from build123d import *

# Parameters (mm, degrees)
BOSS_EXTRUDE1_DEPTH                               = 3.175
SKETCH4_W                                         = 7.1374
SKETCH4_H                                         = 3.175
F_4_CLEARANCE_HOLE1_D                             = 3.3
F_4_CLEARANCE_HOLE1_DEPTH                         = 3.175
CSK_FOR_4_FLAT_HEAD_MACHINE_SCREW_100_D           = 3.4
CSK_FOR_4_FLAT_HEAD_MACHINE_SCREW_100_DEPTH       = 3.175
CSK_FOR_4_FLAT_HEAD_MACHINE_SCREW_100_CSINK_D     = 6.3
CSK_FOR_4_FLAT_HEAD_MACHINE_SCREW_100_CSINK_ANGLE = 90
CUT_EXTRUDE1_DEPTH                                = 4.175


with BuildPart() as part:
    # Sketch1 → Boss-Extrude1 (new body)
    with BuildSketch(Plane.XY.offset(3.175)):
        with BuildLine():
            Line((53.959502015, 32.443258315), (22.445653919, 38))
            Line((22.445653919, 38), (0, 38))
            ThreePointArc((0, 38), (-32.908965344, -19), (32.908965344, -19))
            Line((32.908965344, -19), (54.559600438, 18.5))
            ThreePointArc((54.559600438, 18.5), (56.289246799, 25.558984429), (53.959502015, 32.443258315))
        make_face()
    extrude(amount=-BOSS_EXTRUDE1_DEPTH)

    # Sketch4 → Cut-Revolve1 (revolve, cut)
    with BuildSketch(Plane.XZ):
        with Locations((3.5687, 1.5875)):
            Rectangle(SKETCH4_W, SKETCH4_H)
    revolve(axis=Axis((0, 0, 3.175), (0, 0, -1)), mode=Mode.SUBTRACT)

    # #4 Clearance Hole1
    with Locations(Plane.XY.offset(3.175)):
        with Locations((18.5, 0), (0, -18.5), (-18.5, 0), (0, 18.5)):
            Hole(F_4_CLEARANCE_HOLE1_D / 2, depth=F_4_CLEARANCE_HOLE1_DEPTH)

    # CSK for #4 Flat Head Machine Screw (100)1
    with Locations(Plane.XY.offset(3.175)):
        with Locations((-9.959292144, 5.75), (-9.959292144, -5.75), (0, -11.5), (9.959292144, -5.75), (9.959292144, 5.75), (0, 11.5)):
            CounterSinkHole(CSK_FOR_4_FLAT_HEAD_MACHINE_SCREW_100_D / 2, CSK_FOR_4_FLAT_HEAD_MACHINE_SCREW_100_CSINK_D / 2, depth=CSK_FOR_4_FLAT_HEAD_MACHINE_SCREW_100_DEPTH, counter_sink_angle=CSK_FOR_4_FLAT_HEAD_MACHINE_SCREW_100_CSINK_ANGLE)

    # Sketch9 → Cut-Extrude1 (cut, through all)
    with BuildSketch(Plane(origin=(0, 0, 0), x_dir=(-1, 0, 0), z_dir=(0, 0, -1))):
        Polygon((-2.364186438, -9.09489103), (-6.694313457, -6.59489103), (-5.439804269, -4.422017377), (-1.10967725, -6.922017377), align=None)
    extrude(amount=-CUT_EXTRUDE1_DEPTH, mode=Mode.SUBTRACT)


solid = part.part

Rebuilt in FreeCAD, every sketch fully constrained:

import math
import FreeCAD as App
import Part
import Sketcher
Q = App.Units.Quantity

doc = App.newDocument("Part")
params = doc.addObject("Spreadsheet::Sheet", "Params")
for row, (alias, value) in enumerate([
    ("sketch1_radius", "38 mm"),
    ("sketch1_radius2", "13 mm"),
    ("sketch1_length", "32 mm"),
    ("pad1_length", "3.175 mm"),
    ("groove_angle", "360 deg"),
    ("sketch3_diameter", "3.3 mm"),
    ("hole_diameter", "3.3 mm"),
    ("hole_depth", "3.175 mm"),
    ("sketch4_diameter", "3.4 mm"),
    ("hole2_diameter", "3.4 mm"),
    ("hole2_depth", "3.175 mm"),
    ("hole2_csink_diameter", "6.3 mm"),
    ("sketch5_length", "5 mm"),
], start=1):
    params.set(f"A{row}", alias)
    params.set(f"B{row}", "=" + value)
    params.setAlias(f"B{row}", alias)

body = doc.addObject("PartDesign::Body", "Body")

# Sketch on XY plane
sketch1 = body.newObject("Sketcher::SketchObject", "Sketch")
sketch1.AttachmentSupport = (doc.getObject("XY_Plane"), [""])
sketch1.MapMode = "FlatFace"
sketch1.AttachmentOffset = App.Placement(App.Vector(0, 0, 3.175), App.Rotation())
sketch1.addGeometry([
    Part.LineSegment(App.Vector(54, 32, 0), App.Vector(22, 38, 0)),  # 0
    Part.LineSegment(App.Vector(22, 38, 0), App.Vector(0, 38, 0)),  # 1
    Part.ArcOfCircle(Part.Circle(App.Vector(0, 0, 0), App.Vector(0, 0, 1), 38), math.radians(90), math.radians(330)),  # 2
    Part.LineSegment(App.Vector(33, -19, 0), App.Vector(55, 18, 0)),  # 3
    Part.ArcOfCircle(Part.Circle(App.Vector(43, 25, 0), App.Vector(0, 0, 1), 13), math.radians(-30), math.radians(35)),  # 4
], False)
sketch1.addConstraint([
    Sketcher.Constraint("Coincident", 0, 2, 1, 1),
    Sketcher.Constraint("Tangent", 1, 2, 2, 1),
    Sketcher.Constraint("Tangent", 2, 2, 3, 1),
    Sketcher.Constraint("Tangent", 3, 2, 4, 1),
    Sketcher.Constraint("Coincident", 4, 2, 0, 1),
    Sketcher.Constraint("Horizontal", 1),
    Sketcher.Constraint("Coincident", 2, 3, -1, 1),
    Sketcher.Constraint("Radius", 2, Q("38 mm")),
    Sketcher.Constraint("Radius", 4, Q("13 mm")),
    Sketcher.Constraint("Angle", 0, Q("170 deg")),
    Sketcher.Constraint("Angle", 3, Q("60 deg")),
    Sketcher.Constraint("Distance", 0, Q("32 mm")),
    Sketcher.Constraint("DistanceY", -1, 1, 4, 3, Q("25 mm")),
])
sketch1.setExpression("Constraints[7]", "Params.sketch1_radius")
sketch1.setExpression("Constraints[8]", "Params.sketch1_radius2")
sketch1.setExpression("Constraints[11]", "Params.sketch1_length")
pad1 = body.newObject("PartDesign::Pad", "Pad")
pad1.Profile = sketch1
pad1.setExpression("Length", "Params.pad1_length")
pad1.Reversed = True

# Sketch on XZ plane
sketch2 = body.newObject("Sketcher::SketchObject", "Sketch001")
sketch2.AttachmentSupport = (doc.getObject("XZ_Plane"), [""])
sketch2.MapMode = "FlatFace"
sketch2.addGeometry([
    Part.LineSegment(App.Vector(0, 3.2, 0), App.Vector(0, 0, 0)),
    Part.LineSegment(App.Vector(0, 0, 0), App.Vector(7.1, 0, 0)),
    Part.LineSegment(App.Vector(7.1, 0, 0), App.Vector(7.1, 3.2, 0)),
    Part.LineSegment(App.Vector(7.1, 3.2, 0), App.Vector(0, 3.2, 0)),
], False)
sketch2.addConstraint([
    Sketcher.Constraint("Coincident", 0, 2, 1, 1),
    Sketcher.Constraint("Coincident", 1, 2, 2, 1),
    Sketcher.Constraint("Coincident", 2, 2, 3, 1),
    Sketcher.Constraint("Coincident", 3, 2, 0, 1),
    Sketcher.Constraint("Vertical", 0),
    Sketcher.Constraint("Horizontal", 1),
    Sketcher.Constraint("Vertical", 2),
    Sketcher.Constraint("Horizontal", 3),
    Sketcher.Constraint("Coincident", 0, 2, -1, 1),
    Sketcher.Constraint("DistanceY", 0, 2, 0, 1, Q("3.175 mm")),
    Sketcher.Constraint("DistanceX", 1, 1, 1, 2, Q("7.1374 mm")),
])
groove = body.newObject("PartDesign::Groove", "Groove")
groove.Profile = sketch2
groove.ReferenceAxis = (sketch2, ["V_Axis"])
groove.setExpression("Angle", "Params.groove_angle")

# Sketch on XY plane
sketch3 = body.newObject("Sketcher::SketchObject", "Sketch002")
sketch3.AttachmentSupport = (doc.getObject("XY_Plane"), [""])
sketch3.MapMode = "FlatFace"
sketch3.AttachmentOffset = App.Placement(App.Vector(0, 0, 3.175), App.Rotation())
sketch3.addGeometry([
    Part.Circle(App.Vector(18.5, 0, 0), App.Vector(0, 0, 1), 1.6),
    Part.Circle(App.Vector(0, -18.5, 0), App.Vector(0, 0, 1), 1.6),
    Part.Circle(App.Vector(-18.5, 0, 0), App.Vector(0, 0, 1), 1.6),
    Part.Circle(App.Vector(0, 18.5, 0), App.Vector(0, 0, 1), 1.6),
], False)
sketch3.addConstraint([
    Sketcher.Constraint("Equal", 0, 1),
    Sketcher.Constraint("Equal", 1, 2),
    Sketcher.Constraint("Equal", 2, 3),
    Sketcher.Constraint("Symmetric", 0, 3, 2, 3, -1, 1),
    Sketcher.Constraint("Symmetric", 1, 3, 3, 3, -1, 1),
    Sketcher.Constraint("PointOnObject", 0, 3, -1),
    Sketcher.Constraint("PointOnObject", 1, 3, -2),
    Sketcher.Constraint("Diameter", 0, Q("3.3 mm")),
    Sketcher.Constraint("DistanceX", 2, 3, 0, 3, Q("37 mm")),
    Sketcher.Constraint("DistanceY", 1, 3, 3, 3, Q("37 mm")),
])
sketch3.setExpression("Constraints[7]", "Params.sketch3_diameter")
doc.recompute()
hole = body.newObject("PartDesign::Hole", "Hole")
hole.Profile = sketch3
hole.ThreadType = "None"
hole.setExpression("Diameter", "Params.hole_diameter")
hole.DepthType = "Dimension"
hole.setExpression("Depth", "Params.hole_depth")
hole.DrillPoint = "Flat"

# Sketch on XY plane
sketch4 = body.newObject("Sketcher::SketchObject", "Sketch003")
sketch4.AttachmentSupport = (doc.getObject("XY_Plane"), [""])
sketch4.MapMode = "FlatFace"
sketch4.AttachmentOffset = App.Placement(App.Vector(0, 0, 3.175), App.Rotation())
sketch4.addGeometry([
    Part.Circle(App.Vector(-10, 5.8, 0), App.Vector(0, 0, 1), 1.7),  # 0
    Part.Circle(App.Vector(-10, -5.8, 0), App.Vector(0, 0, 1), 1.7),  # 1
    Part.Circle(App.Vector(0, -11.5, 0), App.Vector(0, 0, 1), 1.7),  # 2
    Part.Circle(App.Vector(10, -5.8, 0), App.Vector(0, 0, 1), 1.7),  # 3
    Part.Circle(App.Vector(10, 5.8, 0), App.Vector(0, 0, 1), 1.7),  # 4
    Part.Circle(App.Vector(0, 11.5, 0), App.Vector(0, 0, 1), 1.7),  # 5
], False)
sketch4.addConstraint([
    Sketcher.Constraint("Equal", 0, 1),
    Sketcher.Constraint("Equal", 1, 2),
    Sketcher.Constraint("Equal", 2, 3),
    Sketcher.Constraint("Equal", 3, 4),
    Sketcher.Constraint("Equal", 4, 5),
    Sketcher.Constraint("Symmetric", 0, 3, 3, 3, -1, 1),
    Sketcher.Constraint("Symmetric", 1, 3, 4, 3, -1, 1),
    Sketcher.Constraint("Symmetric", 2, 3, 5, 3, -1, 1),
    Sketcher.Constraint("Symmetric", 1, 3, 3, 3, -2),
    Sketcher.Constraint("PointOnObject", 2, 3, -2),
    Sketcher.Constraint("Diameter", 0, Q("3.4 mm")),
    Sketcher.Constraint("DistanceY", 2, 3, 5, 3, Q("23 mm")),
    Sketcher.Constraint("DistanceY", 1, 3, 0, 3, Q("11.5 mm")),
    Sketcher.Constraint("DistanceX", 0, 3, -1, 1, Q("9.959292 mm")),
])
sketch4.setExpression("Constraints[10]", "Params.sketch4_diameter")
doc.recompute()
hole2 = body.newObject("PartDesign::Hole", "Hole001")
hole2.Profile = sketch4
hole2.ThreadType = "None"
hole2.setExpression("Diameter", "Params.hole2_diameter")
hole2.DepthType = "Dimension"
hole2.setExpression("Depth", "Params.hole2_depth")
hole2.DrillPoint = "Flat"
hole2.HoleCutType = "Countersink"
hole2.setExpression("HoleCutDiameter", "Params.hole2_csink_diameter")
hole2.HoleCutCountersinkAngle = 90

# Sketch on XY plane
sketch5 = body.newObject("Sketcher::SketchObject", "Sketch004")
sketch5.AttachmentSupport = (doc.getObject("XY_Plane"), [""])
sketch5.MapMode = "FlatFace"
sketch5.addGeometry([
    Part.LineSegment(App.Vector(6.7, -6.6, 0), App.Vector(2.4, -9.1, 0)),
    Part.LineSegment(App.Vector(2.4, -9.1, 0), App.Vector(1.1, -6.9, 0)),
    Part.LineSegment(App.Vector(1.1, -6.9, 0), App.Vector(5.4, -4.4, 0)),
    Part.LineSegment(App.Vector(5.4, -4.4, 0), App.Vector(6.7, -6.6, 0)),
], False)
sketch5.addConstraint([
    Sketcher.Constraint("Coincident", 0, 2, 1, 1),
    Sketcher.Constraint("Coincident", 1, 2, 2, 1),
    Sketcher.Constraint("Coincident", 2, 2, 3, 1),
    Sketcher.Constraint("Coincident", 3, 2, 0, 1),
    Sketcher.Constraint("Perpendicular", 0, 1),
    Sketcher.Constraint("Perpendicular", 1, 2),
    Sketcher.Constraint("Perpendicular", 2, 3),
    Sketcher.Constraint("Angle", 0, Q("-150 deg")),
    Sketcher.Constraint("Distance", 0, Q("5 mm")),
    Sketcher.Constraint("Distance", 1, Q("2.509018 mm")),
    Sketcher.Constraint("DistanceY", 0, 2, -1, 1, Q("9.094891 mm")),
    Sketcher.Constraint("DistanceX", -1, 1, 0, 2, Q("2.364186 mm")),
])
sketch5.setExpression("Constraints[8]", "Params.sketch5_length")
pocket1 = body.newObject("PartDesign::Pocket", "Pocket")
pocket1.Profile = sketch5
pocket1.Type = "ThroughAll"
pocket1.Reversed = True

doc.recompute()
